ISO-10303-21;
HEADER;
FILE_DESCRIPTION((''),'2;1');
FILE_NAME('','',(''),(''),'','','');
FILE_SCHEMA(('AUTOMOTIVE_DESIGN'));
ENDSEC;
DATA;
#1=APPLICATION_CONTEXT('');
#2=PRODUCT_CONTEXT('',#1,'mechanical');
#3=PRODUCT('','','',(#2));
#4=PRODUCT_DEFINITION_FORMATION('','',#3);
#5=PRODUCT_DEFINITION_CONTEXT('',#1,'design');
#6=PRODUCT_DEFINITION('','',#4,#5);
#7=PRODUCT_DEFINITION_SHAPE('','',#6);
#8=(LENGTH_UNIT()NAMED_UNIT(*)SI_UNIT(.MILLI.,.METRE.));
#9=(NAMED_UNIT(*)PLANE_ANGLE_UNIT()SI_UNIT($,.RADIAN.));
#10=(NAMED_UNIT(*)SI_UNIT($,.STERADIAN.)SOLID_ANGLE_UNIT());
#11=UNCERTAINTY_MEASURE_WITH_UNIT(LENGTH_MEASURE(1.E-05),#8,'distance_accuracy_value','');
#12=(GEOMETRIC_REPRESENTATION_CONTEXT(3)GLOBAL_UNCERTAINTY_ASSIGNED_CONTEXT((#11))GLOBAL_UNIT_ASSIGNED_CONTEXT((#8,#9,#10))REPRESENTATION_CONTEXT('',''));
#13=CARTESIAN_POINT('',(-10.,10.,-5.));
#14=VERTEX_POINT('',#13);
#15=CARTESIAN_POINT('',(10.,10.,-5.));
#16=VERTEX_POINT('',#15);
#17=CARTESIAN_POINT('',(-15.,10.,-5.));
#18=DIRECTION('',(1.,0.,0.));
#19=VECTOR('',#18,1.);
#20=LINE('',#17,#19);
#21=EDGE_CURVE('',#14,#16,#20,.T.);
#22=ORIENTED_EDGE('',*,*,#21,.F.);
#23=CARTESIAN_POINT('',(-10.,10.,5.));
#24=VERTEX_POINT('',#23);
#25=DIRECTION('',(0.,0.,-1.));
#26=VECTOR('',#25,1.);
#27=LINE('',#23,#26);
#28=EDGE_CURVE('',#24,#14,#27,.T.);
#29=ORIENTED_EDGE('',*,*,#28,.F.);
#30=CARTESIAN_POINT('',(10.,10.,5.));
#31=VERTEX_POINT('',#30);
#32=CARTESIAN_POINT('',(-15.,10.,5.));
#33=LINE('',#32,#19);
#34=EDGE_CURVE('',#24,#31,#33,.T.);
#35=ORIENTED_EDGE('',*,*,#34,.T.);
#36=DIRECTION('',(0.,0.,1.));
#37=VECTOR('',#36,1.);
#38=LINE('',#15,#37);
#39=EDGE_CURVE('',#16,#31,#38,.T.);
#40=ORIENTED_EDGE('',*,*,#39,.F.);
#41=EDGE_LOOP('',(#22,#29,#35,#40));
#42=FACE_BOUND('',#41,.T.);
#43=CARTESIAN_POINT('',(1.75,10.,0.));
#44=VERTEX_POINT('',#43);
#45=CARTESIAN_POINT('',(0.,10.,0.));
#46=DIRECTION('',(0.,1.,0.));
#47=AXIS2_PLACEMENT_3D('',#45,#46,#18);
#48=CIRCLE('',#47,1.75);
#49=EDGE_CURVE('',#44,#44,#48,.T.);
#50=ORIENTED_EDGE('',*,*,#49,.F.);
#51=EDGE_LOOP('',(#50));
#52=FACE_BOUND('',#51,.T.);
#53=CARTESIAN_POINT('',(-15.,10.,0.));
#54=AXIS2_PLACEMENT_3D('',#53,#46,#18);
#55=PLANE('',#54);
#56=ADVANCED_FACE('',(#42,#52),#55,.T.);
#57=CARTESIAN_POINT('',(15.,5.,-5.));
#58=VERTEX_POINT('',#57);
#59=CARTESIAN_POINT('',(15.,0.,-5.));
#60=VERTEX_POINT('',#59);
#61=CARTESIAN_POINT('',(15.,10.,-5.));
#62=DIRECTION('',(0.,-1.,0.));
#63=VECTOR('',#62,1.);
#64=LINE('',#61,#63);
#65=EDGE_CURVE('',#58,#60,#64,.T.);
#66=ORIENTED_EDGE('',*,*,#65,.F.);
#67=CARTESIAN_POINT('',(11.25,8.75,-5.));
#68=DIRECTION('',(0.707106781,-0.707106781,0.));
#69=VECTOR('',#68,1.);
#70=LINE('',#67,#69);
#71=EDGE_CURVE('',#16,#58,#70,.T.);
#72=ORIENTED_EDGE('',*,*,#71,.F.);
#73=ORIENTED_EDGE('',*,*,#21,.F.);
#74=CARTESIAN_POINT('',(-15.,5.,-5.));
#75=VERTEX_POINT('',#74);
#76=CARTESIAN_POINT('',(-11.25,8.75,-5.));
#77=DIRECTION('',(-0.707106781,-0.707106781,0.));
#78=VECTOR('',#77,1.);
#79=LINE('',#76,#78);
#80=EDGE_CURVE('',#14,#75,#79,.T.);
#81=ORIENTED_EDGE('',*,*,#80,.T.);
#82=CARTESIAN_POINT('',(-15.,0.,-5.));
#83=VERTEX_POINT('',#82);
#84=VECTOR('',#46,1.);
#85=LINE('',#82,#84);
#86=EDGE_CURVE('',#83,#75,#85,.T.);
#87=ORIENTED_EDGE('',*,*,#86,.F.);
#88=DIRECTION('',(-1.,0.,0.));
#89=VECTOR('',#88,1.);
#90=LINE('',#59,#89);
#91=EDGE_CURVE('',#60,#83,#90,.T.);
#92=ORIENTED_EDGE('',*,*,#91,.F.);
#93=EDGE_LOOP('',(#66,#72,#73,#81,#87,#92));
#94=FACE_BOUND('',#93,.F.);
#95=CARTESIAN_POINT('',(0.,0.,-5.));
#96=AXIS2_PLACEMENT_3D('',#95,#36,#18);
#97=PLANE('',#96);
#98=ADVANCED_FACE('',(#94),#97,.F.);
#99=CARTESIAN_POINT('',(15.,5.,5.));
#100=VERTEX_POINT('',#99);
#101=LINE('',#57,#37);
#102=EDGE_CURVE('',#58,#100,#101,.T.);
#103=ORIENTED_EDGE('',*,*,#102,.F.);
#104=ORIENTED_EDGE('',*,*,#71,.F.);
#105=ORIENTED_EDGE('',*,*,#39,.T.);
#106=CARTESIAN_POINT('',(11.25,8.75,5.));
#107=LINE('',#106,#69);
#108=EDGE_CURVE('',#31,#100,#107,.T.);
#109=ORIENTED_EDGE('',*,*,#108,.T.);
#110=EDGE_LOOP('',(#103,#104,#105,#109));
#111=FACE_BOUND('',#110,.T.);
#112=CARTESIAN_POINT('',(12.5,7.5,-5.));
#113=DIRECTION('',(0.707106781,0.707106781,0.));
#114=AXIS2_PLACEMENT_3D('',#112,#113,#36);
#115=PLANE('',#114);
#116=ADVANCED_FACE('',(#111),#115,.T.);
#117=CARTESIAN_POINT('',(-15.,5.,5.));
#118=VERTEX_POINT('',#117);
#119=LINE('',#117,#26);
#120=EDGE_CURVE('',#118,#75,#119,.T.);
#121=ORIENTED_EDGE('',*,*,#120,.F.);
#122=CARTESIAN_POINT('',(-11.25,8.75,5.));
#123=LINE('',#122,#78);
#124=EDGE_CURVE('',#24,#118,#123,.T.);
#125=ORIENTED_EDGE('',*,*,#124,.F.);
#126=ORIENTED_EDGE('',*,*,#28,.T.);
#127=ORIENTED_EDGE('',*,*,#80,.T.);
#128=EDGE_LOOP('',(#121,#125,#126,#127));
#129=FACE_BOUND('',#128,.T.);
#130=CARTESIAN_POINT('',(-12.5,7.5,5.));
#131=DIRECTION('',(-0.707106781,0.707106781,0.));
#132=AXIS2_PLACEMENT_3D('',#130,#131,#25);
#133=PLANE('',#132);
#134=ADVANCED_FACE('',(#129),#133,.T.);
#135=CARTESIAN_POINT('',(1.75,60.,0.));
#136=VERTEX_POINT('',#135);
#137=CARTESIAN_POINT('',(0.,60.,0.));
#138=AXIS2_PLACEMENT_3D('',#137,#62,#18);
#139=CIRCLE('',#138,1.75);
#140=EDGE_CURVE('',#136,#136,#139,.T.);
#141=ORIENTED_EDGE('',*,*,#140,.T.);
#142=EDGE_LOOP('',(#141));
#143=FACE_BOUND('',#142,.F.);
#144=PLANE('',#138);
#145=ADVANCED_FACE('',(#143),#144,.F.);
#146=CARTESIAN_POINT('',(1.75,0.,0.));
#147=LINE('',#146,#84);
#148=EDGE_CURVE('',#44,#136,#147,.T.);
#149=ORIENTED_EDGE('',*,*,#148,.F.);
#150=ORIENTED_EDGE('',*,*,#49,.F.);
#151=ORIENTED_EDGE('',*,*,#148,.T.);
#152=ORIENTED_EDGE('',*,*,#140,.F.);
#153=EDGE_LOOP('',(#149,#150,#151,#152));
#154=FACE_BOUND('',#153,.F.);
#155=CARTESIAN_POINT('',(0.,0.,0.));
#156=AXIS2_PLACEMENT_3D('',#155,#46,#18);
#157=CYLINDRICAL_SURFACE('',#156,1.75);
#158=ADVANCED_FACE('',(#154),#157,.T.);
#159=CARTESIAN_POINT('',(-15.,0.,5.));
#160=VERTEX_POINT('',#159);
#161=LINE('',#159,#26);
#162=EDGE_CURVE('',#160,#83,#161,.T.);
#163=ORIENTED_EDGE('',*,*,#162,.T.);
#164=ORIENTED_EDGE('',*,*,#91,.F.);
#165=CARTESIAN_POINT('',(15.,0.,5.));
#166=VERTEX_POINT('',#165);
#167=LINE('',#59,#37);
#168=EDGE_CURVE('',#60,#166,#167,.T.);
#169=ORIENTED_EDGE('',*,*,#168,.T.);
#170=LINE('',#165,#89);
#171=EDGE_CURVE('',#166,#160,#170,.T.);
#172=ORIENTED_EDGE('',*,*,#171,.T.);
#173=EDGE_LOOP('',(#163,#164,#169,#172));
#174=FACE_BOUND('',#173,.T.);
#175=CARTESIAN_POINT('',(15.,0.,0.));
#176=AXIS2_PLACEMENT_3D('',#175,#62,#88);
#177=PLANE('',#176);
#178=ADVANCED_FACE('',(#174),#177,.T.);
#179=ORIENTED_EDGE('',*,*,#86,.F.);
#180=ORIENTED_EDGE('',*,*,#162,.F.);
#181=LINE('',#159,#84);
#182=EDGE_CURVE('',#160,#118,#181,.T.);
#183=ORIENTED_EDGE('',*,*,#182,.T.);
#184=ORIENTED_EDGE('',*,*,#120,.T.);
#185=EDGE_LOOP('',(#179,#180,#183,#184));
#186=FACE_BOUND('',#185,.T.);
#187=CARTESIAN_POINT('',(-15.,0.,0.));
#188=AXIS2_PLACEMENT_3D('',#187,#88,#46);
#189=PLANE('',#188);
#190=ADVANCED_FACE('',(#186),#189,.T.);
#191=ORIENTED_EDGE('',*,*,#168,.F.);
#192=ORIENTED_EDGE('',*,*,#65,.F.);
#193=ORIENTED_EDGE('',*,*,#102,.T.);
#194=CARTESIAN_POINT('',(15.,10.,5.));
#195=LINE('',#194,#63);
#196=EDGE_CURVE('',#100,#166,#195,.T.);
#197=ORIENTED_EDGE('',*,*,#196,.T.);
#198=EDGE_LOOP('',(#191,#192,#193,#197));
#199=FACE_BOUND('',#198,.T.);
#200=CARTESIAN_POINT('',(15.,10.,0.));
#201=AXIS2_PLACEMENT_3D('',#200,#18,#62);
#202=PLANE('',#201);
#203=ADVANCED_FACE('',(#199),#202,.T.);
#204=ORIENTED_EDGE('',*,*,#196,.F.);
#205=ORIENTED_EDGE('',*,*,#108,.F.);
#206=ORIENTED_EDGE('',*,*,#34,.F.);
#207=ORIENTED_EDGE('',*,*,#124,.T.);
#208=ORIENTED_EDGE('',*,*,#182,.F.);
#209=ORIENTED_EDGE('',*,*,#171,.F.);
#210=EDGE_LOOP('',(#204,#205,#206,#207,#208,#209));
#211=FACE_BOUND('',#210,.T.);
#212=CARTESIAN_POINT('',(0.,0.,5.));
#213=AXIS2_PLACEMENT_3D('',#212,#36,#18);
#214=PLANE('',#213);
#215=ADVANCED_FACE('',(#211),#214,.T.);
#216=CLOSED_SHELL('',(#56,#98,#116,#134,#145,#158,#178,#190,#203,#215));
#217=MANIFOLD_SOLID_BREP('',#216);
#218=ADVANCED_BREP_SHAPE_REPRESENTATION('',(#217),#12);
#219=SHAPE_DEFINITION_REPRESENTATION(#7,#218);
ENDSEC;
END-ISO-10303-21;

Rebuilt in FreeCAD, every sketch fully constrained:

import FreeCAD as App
import Part
import Sketcher
from FreeCAD import Vector


def edges_at(feature, points):
    """Names of the edges that pass closest to the given points."""
    edges = feature.Shape.Edges
    near = lambda p: min(range(len(edges)), key=lambda i: edges[i].distToShape(Part.Vertex(*p))[0])
    return sorted({f"Edge{near(p) + 1}" for p in points})


def add_polygon(sketch, points):
    """Adds a closed chain of lines whose ends are joined by coincident constraints."""
    first, n = sketch.GeometryCount, len(points)
    for a, b in zip(points, points[1:] + points[:1]):
        sketch.addGeometry(Part.LineSegment(App.Vector(*a, 0), App.Vector(*b, 0)), False)
    for i in range(n):
        sketch.addConstraint(Sketcher.Constraint("Coincident", first + i, 2, first + (i + 1) % n, 1))

doc = App.newDocument("Part")
params = doc.addObject("Spreadsheet::Sheet", "Params")
for row, (alias, value) in enumerate([
    ("sketch1_height", "60 mm"),
    ("sketch1_width", "1.75 mm"),
    ("revolution_angle", "360 deg"),
    ("sketch2_width", "30 mm"),
    ("sketch2_height", "10 mm"),
    ("pad1_length", "10 mm"),
    ("chamfer_size", "5 mm"),
], start=1):
    params.set(f"A{row}", alias)
    params.set(f"B{row}", "=" + value)
    params.setAlias(f"B{row}", alias)

body = doc.addObject("PartDesign::Body", "Body")

sketch1 = body.newObject("Sketcher::SketchObject", "Sketch")
sketch1.AttachmentSupport = (doc.getObject("XY_Plane"), [""])
sketch1.MapMode = "FlatFace"
add_polygon(sketch1, [(0, 60), (0, 0), (1.8, 0), (1.8, 60)])
sketch1.addConstraint([
    Sketcher.Constraint("Vertical", 0),
    Sketcher.Constraint("Horizontal", 1),
    Sketcher.Constraint("Vertical", 2),
    Sketcher.Constraint("Horizontal", 3),
    Sketcher.Constraint("Coincident", 0, 2, -1, 1),
    Sketcher.Constraint("DistanceY", 0, 2, 0, 1, 60.0),
    Sketcher.Constraint("DistanceX", 1, 1, 1, 2, 1.75),
])
sketch1.setExpression("Constraints[9]", "Params.sketch1_height")
sketch1.setExpression("Constraints[10]", "Params.sketch1_width")
revolution = body.newObject("PartDesign::Revolution", "Revolution")
revolution.Profile = sketch1
revolution.ReferenceAxis = (sketch1, ["V_Axis"])
revolution.setExpression("Angle", "Params.revolution_angle")

sketch2 = body.newObject("Sketcher::SketchObject", "Sketch001")
sketch2.AttachmentSupport = (doc.getObject("XY_Plane"), [""])
sketch2.MapMode = "FlatFace"
add_polygon(sketch2, [(-15, 0), (15, 0), (15, 10), (-15, 10)])
sketch2.addConstraint([
    Sketcher.Constraint("Horizontal", 0),
    Sketcher.Constraint("Vertical", 1),
    Sketcher.Constraint("Horizontal", 2),
    Sketcher.Constraint("Vertical", 3),
    Sketcher.Constraint("Symmetric", 0, 2, 3, 2, -1, 1),
    Sketcher.Constraint("DistanceX", 0, 1, 0, 2, 30.0),
    Sketcher.Constraint("DistanceY", 1, 1, 1, 2, 10.0),
])
sketch2.setExpression("Constraints[9]", "Params.sketch2_width")
sketch2.setExpression("Constraints[10]", "Params.sketch2_height")
pad1 = body.newObject("PartDesign::Pad", "Pad")
pad1.Profile = sketch2
pad1.setExpression("Length", "Params.pad1_length")
pad1.Midplane = True
doc.recompute()

chamfer = body.newObject("PartDesign::Chamfer", "Chamfer")
chamfer.Base = (pad1, edges_at(pad1, [(-15, 10, 0), (15, 10, 0)]))
chamfer.setExpression("Size", "Params.chamfer_size")

doc.recompute()
